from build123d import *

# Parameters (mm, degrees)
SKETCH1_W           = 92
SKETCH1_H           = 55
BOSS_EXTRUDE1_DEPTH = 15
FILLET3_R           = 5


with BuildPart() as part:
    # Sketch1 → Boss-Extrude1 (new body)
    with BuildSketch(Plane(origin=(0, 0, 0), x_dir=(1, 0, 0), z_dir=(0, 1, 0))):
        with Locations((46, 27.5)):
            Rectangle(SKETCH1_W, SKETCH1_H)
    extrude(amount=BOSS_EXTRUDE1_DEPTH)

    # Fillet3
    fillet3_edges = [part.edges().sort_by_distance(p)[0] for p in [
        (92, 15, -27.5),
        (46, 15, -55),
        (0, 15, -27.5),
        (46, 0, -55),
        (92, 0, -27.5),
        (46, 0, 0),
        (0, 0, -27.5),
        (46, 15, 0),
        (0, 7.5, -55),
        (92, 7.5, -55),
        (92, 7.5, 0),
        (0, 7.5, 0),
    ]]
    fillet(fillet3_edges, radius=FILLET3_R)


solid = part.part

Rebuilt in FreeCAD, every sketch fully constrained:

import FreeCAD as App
import Part
import Sketcher

V = App.Vector
Q = App.Units.Quantity

doc = App.newDocument("Part")
params = doc.addObject("Spreadsheet::Sheet", "Params")
for row, (alias, value) in enumerate([
    ("sketch1_width", "92 mm"),
    ("sketch1_height", "55 mm"),
    ("pad1_length", "15 mm"),
    ("fillet_radius", "5 mm"),
], start=1):
    params.set(f"A{row}", alias)
    params.set(f"B{row}", "=" + value)
    params.setAlias(f"B{row}", alias)

body = doc.addObject("PartDesign::Body", "Body")

sketch1 = body.newObject("Sketcher::SketchObject", "Sketch")
sketch1.AttachmentSupport = (doc.getObject("XZ_Plane"), [""])
sketch1.MapMode = "FlatFace"
sketch1.addGeometry([
    Part.LineSegment(V(0, -55, 0), V(0, 0, 0)),
    Part.LineSegment(V(0, 0, 0), V(92, 0, 0)),
    Part.LineSegment(V(92, 0, 0), V(92, -55, 0)),
    Part.LineSegment(V(92, -55, 0), V(0, -55, 0)),
], False)
sketch1.addConstraint([
    Sketcher.Constraint("Coincident", 0, 2, 1, 1),
    Sketcher.Constraint("Coincident", 1, 2, 2, 1),
    Sketcher.Constraint("Coincident", 2, 2, 3, 1),
    Sketcher.Constraint("Coincident", 3, 2, 0, 1),
    Sketcher.Constraint("Vertical", 0),
    Sketcher.Constraint("Horizontal", 1),
    Sketcher.Constraint("Vertical", 2),
    Sketcher.Constraint("Horizontal", 3),
    Sketcher.Constraint("Coincident", 0, 2, -1, 1),
    Sketcher.Constraint("DistanceX", 1, 1, 1, 2, Q("92 mm")),
    Sketcher.Constraint("DistanceY", 0, 1, 0, 2, Q("55 mm")),
])
sketch1.setExpression("Constraints[9]", "Params.sketch1_width")
sketch1.setExpression("Constraints[10]", "Params.sketch1_height")
pad1 = body.newObject("PartDesign::Pad", "Pad")
pad1.Profile = sketch1
pad1.setExpression("Length", "Params.pad1_length")
pad1.Reversed = True
doc.recompute()

fillet = body.newObject("PartDesign::Fillet", "Fillet")
fillet.Base = (pad1, ["Edge1"])
fillet.UseAllEdges = True
fillet.setExpression("Radius", "Params.fillet_radius")

doc.recompute()
